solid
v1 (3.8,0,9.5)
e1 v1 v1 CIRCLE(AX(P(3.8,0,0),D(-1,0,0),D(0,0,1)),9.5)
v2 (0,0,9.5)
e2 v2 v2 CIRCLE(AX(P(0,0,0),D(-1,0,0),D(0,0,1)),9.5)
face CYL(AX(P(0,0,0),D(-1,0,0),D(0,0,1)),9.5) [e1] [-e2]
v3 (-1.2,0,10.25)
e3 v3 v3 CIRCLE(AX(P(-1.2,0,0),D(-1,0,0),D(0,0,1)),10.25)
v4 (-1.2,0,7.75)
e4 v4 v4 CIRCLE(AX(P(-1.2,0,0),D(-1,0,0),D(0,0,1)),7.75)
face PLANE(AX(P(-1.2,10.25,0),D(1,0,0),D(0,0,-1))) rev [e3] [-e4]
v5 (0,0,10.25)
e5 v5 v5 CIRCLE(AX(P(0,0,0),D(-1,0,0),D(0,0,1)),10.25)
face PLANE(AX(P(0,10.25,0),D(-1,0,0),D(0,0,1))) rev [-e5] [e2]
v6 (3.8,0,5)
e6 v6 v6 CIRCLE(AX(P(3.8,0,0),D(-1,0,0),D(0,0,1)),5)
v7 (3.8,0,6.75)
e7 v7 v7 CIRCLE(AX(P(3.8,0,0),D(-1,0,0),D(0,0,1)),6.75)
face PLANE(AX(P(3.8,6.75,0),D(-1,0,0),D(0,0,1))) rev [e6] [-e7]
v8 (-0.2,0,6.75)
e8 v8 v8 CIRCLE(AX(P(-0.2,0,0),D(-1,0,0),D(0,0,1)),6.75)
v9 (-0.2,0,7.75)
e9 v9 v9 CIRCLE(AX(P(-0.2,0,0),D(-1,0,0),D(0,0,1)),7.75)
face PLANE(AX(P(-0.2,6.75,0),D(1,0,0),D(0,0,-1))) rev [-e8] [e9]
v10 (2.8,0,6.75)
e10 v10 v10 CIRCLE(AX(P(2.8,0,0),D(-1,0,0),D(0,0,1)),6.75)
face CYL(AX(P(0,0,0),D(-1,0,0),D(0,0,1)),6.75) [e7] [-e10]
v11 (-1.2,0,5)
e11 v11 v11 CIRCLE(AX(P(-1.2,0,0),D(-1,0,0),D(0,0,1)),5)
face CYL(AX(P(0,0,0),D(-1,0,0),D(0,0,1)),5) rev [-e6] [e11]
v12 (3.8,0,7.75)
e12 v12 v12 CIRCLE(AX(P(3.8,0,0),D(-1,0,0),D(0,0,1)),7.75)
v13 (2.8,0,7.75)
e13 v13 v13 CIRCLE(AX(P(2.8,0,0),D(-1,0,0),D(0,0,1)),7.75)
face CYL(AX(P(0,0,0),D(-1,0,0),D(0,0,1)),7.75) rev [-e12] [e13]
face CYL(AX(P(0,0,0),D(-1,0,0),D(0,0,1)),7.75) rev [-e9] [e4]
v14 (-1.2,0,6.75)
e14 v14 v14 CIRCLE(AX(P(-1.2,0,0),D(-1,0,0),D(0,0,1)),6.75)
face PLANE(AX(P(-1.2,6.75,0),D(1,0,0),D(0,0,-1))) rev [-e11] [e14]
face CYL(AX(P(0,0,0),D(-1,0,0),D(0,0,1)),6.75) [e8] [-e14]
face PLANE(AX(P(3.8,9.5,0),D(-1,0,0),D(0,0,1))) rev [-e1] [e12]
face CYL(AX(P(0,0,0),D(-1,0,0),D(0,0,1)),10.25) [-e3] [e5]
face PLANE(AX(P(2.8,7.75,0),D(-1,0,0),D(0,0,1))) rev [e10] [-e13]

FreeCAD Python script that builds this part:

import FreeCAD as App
import Part
import Sketcher
from FreeCAD import Vector
Q = App.Units.Quantity

doc = App.newDocument("Part")
params = doc.addObject("Spreadsheet::Sheet", "Params")
for row, (alias, value) in enumerate([
    ("sketch1_width", "1 mm"),
    ("sketch1_width2", "5 mm"),
    ("sketch1_width3", "1.2 mm"),
    ("sketch1_height", "2.5 mm"),
    ("sketch1_height2", "1.75 mm"),
    ("revolution_angle", "360 deg"),
], start=1):
    params.set(f"A{row}", alias)
    params.set(f"B{row}", "=" + value)
    params.setAlias(f"B{row}", alias)

body = doc.addObject("PartDesign::Body", "Body")

# Sketch on XY plane
sketch1 = doc.addObject("Sketcher::SketchObject", "Sketch")
body.addObject(sketch1)
sketch1.AttachmentSupport = (doc.XY_Plane, [""])
sketch1.MapMode = "FlatFace"
sketch1.addGeometry([
    Part.LineSegment(Vector(0, 10.25, 0), Vector(-1.2, 10.25, 0)),  # 0
    Part.LineSegment(Vector(-1.2, 10.25, 0), Vector(-1.2, 7.75, 0)),  # 1
    Part.LineSegment(Vector(-1.2, 7.75, 0), Vector(-0.2, 7.75, 0)),  # 2
    Part.LineSegment(Vector(-0.2, 7.75, 0), Vector(-0.2, 6.75, 0)),  # 3
    Part.LineSegment(Vector(-0.2, 6.75, 0), Vector(-1.2, 6.75, 0)),  # 4
    Part.LineSegment(Vector(-1.2, 6.75, 0), Vector(-1.2, 5, 0)),  # 5
    Part.LineSegment(Vector(-1.2, 5, 0), Vector(3.8, 5, 0)),  # 6
    Part.LineSegment(Vector(3.8, 5, 0), Vector(3.8, 6.75, 0)),  # 7
    Part.LineSegment(Vector(3.8, 6.75, 0), Vector(2.8, 6.75, 0)),  # 8
    Part.LineSegment(Vector(2.8, 6.75, 0), Vector(2.8, 7.75, 0)),  # 9
    Part.LineSegment(Vector(2.8, 7.75, 0), Vector(3.8, 7.75, 0)),  # 10
    Part.LineSegment(Vector(3.8, 7.75, 0), Vector(3.8, 9.5, 0)),  # 11
    Part.LineSegment(Vector(3.8, 9.5, 0), Vector(0, 9.5, 0)),  # 12
    Part.LineSegment(Vector(0, 9.5, 0), Vector(0, 10.25, 0)),  # 13
], False)
sketch1.addConstraint([
    Sketcher.Constraint("Coincident", 0, 2, 1, 1),
    Sketcher.Constraint("Coincident", 1, 2, 2, 1),
    Sketcher.Constraint("Coincident", 2, 2, 3, 1),
    Sketcher.Constraint("Coincident", 3, 2, 4, 1),
    Sketcher.Constraint("Coincident", 4, 2, 5, 1),
    Sketcher.Constraint("Coincident", 5, 2, 6, 1),
    Sketcher.Constraint("Coincident", 6, 2, 7, 1),
    Sketcher.Constraint("Coincident", 7, 2, 8, 1),
    Sketcher.Constraint("Coincident", 8, 2, 9, 1),
    Sketcher.Constraint("Coincident", 9, 2, 10, 1),
    Sketcher.Constraint("Coincident", 10, 2, 11, 1),
    Sketcher.Constraint("Coincident", 11, 2, 12, 1),
    Sketcher.Constraint("Coincident", 12, 2, 13, 1),
    Sketcher.Constraint("Coincident", 13, 2, 0, 1),
    Sketcher.Constraint("Horizontal", 0),
    Sketcher.Constraint("Vertical", 1),
    Sketcher.Constraint("Horizontal", 2),
    Sketcher.Constraint("Vertical", 3),
    Sketcher.Constraint("Horizontal", 4),
    Sketcher.Constraint("Vertical", 5),
    Sketcher.Constraint("Horizontal", 6),
    Sketcher.Constraint("Vertical", 7),
    Sketcher.Constraint("Horizontal", 8),
    Sketcher.Constraint("Vertical", 9),
    Sketcher.Constraint("Horizontal", 10),
    Sketcher.Constraint("Vertical", 11),
    Sketcher.Constraint("Horizontal", 12),
    Sketcher.Constraint("Vertical", 13),
    Sketcher.Constraint("PointOnObject", 12, 2, -2),
    Sketcher.Constraint("Horizontal", 4, 2, 7, 2),
    Sketcher.Constraint("Horizontal", 2, 2, 9, 2),
    Sketcher.Constraint("Vertical", 1, 2, 4, 2),
    Sketcher.Constraint("Vertical", 7, 2, 10, 2),
    Sketcher.Constraint("Equal", 4, 8),
    Sketcher.Constraint("Equal", 10, 3),
    Sketcher.Constraint("Equal", 7, 11),
    Sketcher.Constraint("DistanceX", 2, 1, 2, 2, Q("1 mm")),
    Sketcher.Constraint("DistanceX", 6, 1, 6, 2, Q("5 mm")),
    Sketcher.Constraint("DistanceX", 0, 2, 0, 1, Q("1.2 mm")),
    Sketcher.Constraint("DistanceY", 1, 2, 1, 1, Q("2.5 mm")),
    Sketcher.Constraint("DistanceY", -1, 1, 5, 2, Q("5 mm")),
    Sketcher.Constraint("DistanceY", 5, 2, 5, 1, Q("1.75 mm")),
])
sketch1.setExpression("Constraints[36]", "Params.sketch1_width")
sketch1.setExpression("Constraints[37]", "Params.sketch1_width2")
sketch1.setExpression("Constraints[38]", "Params.sketch1_width3")
sketch1.setExpression("Constraints[39]", "Params.sketch1_height")
sketch1.setExpression("Constraints[41]", "Params.sketch1_height2")
revolution = doc.addObject("PartDesign::Revolution", "Revolution")
body.addObject(revolution)
revolution.Profile = sketch1
revolution.ReferenceAxis = (sketch1, ["H_Axis"])
revolution.setExpression("Angle", "Params.revolution_angle")

doc.recompute()
